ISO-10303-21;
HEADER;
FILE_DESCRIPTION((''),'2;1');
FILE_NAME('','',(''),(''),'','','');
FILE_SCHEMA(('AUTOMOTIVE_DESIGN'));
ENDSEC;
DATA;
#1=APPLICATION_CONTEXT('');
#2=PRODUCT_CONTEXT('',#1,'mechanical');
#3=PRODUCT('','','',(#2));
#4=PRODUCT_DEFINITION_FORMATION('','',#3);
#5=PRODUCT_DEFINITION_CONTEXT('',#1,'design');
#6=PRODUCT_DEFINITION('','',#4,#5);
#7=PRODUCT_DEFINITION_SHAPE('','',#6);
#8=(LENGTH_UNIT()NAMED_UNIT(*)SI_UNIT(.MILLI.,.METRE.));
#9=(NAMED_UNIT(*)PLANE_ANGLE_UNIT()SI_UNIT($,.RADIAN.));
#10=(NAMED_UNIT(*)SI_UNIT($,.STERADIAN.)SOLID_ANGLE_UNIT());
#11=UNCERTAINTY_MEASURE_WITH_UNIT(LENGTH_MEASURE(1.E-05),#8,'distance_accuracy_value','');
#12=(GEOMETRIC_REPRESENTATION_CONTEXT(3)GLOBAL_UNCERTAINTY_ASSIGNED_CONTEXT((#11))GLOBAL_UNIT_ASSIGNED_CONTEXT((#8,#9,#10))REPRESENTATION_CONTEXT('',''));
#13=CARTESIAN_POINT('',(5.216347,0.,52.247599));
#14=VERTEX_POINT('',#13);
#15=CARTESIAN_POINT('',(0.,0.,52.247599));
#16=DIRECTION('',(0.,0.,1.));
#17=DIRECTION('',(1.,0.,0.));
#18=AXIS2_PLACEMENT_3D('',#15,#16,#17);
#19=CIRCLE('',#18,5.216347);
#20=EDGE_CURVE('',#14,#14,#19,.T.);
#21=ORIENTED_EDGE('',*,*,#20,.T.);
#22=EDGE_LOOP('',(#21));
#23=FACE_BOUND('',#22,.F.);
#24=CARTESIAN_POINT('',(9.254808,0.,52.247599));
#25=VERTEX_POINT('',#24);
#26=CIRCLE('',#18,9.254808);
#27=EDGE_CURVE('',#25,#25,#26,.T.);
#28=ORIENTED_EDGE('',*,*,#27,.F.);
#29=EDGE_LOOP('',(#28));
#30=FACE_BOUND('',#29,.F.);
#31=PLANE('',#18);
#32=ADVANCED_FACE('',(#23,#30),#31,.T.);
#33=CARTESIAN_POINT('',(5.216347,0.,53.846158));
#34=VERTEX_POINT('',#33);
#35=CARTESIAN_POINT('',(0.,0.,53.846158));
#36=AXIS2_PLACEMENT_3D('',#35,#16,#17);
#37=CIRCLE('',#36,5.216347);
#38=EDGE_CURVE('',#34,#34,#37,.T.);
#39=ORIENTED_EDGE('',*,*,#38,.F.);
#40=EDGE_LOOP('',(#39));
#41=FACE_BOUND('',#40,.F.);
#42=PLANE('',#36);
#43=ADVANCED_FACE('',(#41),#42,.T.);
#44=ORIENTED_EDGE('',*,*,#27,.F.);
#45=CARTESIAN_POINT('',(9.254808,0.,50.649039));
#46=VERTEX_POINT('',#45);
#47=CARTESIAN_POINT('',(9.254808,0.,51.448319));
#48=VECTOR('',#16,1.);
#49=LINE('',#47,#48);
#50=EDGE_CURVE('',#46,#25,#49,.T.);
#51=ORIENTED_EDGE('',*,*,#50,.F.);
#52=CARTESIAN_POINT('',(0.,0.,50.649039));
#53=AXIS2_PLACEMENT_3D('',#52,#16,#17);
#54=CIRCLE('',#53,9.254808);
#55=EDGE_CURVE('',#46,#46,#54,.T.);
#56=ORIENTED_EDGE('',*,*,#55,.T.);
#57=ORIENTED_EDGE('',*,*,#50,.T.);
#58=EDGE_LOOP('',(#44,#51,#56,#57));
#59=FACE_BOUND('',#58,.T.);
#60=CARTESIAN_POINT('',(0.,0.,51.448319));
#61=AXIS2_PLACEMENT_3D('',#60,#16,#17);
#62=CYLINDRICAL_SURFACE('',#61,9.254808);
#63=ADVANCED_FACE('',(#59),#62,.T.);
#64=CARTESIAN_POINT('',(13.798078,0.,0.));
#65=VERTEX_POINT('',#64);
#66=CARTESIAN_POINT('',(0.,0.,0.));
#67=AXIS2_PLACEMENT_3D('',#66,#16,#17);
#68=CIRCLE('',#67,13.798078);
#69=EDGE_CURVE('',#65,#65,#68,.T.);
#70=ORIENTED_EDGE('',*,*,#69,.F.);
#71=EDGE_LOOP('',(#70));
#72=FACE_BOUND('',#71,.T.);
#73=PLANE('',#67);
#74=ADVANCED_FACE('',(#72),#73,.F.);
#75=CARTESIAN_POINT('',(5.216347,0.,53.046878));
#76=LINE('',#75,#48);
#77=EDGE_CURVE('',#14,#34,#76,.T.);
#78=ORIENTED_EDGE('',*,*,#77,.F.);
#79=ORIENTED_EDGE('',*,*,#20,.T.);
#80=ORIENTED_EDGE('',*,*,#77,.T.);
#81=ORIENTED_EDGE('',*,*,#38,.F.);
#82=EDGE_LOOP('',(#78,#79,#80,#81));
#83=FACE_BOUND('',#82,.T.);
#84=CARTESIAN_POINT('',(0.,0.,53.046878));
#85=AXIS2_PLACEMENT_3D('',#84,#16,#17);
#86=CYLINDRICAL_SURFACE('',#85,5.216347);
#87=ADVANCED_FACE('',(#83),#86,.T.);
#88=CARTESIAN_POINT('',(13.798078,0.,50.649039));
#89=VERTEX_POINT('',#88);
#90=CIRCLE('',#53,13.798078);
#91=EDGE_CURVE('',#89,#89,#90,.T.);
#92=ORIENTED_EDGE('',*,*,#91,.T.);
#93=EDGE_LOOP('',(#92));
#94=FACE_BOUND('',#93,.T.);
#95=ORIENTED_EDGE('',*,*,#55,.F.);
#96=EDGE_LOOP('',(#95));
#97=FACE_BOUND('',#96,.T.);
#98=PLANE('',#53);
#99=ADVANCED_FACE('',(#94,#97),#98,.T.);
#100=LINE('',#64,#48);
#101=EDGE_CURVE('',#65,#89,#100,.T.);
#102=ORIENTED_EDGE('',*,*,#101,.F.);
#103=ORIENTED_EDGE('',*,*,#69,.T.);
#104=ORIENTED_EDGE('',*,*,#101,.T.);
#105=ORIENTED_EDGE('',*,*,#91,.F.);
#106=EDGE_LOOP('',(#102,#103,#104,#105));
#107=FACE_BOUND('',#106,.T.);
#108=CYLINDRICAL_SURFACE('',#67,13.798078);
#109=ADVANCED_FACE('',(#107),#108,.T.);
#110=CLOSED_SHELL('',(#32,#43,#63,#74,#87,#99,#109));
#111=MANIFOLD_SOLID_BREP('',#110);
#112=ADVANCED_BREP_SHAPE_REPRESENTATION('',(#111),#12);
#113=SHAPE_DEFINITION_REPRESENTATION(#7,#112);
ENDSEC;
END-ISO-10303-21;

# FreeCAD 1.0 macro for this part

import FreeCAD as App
import Part
import Sketcher

V = App.Vector

doc = App.newDocument("Part")
body = doc.addObject("PartDesign::Body", "Body")

sketch1 = body.newObject("Sketcher::SketchObject", "Sketch")
sketch1.AttachmentSupport = (doc.getObject("XZ_Plane"), [""])
sketch1.MapMode = "FlatFace"
sketch1.addGeometry([
    Part.LineSegment(V(0, 53.8, 0), V(0, 0, 0)),
    Part.LineSegment(V(0, 0, 0), V(13.8, 0, 0)),
    Part.LineSegment(V(13.8, 0, 0), V(13.8, 50.6, 0)),
    Part.LineSegment(V(13.8, 50.6, 0), V(9.3, 50.6, 0)),
    Part.LineSegment(V(9.3, 50.6, 0), V(9.3, 52.2, 0)),
    Part.LineSegment(V(9.3, 52.2, 0), V(5.2, 52.2, 0)),
    Part.LineSegment(V(5.2, 52.2, 0), V(5.2, 53.8, 0)),
    Part.LineSegment(V(5.2, 53.8, 0), V(0, 53.8, 0)),
], False)
sketch1.addConstraint([
    Sketcher.Constraint("Coincident", 0, 2, 1, 1),
    Sketcher.Constraint("Coincident", 1, 2, 2, 1),
    Sketcher.Constraint("Coincident", 2, 2, 3, 1),
    Sketcher.Constraint("Coincident", 3, 2, 4, 1),
    Sketcher.Constraint("Coincident", 4, 2, 5, 1),
    Sketcher.Constraint("Coincident", 5, 2, 6, 1),
    Sketcher.Constraint("Coincident", 6, 2, 7, 1),
    Sketcher.Constraint("Coincident", 7, 2, 0, 1),
    Sketcher.Constraint("Vertical", 0),
    Sketcher.Constraint("Horizontal", 1),
    Sketcher.Constraint("Vertical", 2),
    Sketcher.Constraint("Horizontal", 3),
    Sketcher.Constraint("Vertical", 4),
    Sketcher.Constraint("Horizontal", 5),
    Sketcher.Constraint("Vertical", 6),
    Sketcher.Constraint("Horizontal", 7),
    Sketcher.Constraint("Coincident", 0, 2, -1, 1),
    Sketcher.Constraint("Equal", 4, 6),
    Sketcher.Constraint("DistanceX", 3, 2, 3, 1, 4.54327),
    Sketcher.Constraint("DistanceX", 5, 2, 5, 1, 4.038461),
    Sketcher.Constraint("DistanceY", 0, 2, 0, 1, 53.846158),
    Sketcher.Constraint("DistanceY", 2, 1, 2, 2, 50.649039),
    Sketcher.Constraint("DistanceX", 1, 1, 1, 2, 13.798078),
])
revolution = body.newObject("PartDesign::Revolution", "Revolution")
revolution.Profile = sketch1
revolution.ReferenceAxis = (sketch1, ["V_Axis"])
revolution.Angle = 360

doc.recompute()
